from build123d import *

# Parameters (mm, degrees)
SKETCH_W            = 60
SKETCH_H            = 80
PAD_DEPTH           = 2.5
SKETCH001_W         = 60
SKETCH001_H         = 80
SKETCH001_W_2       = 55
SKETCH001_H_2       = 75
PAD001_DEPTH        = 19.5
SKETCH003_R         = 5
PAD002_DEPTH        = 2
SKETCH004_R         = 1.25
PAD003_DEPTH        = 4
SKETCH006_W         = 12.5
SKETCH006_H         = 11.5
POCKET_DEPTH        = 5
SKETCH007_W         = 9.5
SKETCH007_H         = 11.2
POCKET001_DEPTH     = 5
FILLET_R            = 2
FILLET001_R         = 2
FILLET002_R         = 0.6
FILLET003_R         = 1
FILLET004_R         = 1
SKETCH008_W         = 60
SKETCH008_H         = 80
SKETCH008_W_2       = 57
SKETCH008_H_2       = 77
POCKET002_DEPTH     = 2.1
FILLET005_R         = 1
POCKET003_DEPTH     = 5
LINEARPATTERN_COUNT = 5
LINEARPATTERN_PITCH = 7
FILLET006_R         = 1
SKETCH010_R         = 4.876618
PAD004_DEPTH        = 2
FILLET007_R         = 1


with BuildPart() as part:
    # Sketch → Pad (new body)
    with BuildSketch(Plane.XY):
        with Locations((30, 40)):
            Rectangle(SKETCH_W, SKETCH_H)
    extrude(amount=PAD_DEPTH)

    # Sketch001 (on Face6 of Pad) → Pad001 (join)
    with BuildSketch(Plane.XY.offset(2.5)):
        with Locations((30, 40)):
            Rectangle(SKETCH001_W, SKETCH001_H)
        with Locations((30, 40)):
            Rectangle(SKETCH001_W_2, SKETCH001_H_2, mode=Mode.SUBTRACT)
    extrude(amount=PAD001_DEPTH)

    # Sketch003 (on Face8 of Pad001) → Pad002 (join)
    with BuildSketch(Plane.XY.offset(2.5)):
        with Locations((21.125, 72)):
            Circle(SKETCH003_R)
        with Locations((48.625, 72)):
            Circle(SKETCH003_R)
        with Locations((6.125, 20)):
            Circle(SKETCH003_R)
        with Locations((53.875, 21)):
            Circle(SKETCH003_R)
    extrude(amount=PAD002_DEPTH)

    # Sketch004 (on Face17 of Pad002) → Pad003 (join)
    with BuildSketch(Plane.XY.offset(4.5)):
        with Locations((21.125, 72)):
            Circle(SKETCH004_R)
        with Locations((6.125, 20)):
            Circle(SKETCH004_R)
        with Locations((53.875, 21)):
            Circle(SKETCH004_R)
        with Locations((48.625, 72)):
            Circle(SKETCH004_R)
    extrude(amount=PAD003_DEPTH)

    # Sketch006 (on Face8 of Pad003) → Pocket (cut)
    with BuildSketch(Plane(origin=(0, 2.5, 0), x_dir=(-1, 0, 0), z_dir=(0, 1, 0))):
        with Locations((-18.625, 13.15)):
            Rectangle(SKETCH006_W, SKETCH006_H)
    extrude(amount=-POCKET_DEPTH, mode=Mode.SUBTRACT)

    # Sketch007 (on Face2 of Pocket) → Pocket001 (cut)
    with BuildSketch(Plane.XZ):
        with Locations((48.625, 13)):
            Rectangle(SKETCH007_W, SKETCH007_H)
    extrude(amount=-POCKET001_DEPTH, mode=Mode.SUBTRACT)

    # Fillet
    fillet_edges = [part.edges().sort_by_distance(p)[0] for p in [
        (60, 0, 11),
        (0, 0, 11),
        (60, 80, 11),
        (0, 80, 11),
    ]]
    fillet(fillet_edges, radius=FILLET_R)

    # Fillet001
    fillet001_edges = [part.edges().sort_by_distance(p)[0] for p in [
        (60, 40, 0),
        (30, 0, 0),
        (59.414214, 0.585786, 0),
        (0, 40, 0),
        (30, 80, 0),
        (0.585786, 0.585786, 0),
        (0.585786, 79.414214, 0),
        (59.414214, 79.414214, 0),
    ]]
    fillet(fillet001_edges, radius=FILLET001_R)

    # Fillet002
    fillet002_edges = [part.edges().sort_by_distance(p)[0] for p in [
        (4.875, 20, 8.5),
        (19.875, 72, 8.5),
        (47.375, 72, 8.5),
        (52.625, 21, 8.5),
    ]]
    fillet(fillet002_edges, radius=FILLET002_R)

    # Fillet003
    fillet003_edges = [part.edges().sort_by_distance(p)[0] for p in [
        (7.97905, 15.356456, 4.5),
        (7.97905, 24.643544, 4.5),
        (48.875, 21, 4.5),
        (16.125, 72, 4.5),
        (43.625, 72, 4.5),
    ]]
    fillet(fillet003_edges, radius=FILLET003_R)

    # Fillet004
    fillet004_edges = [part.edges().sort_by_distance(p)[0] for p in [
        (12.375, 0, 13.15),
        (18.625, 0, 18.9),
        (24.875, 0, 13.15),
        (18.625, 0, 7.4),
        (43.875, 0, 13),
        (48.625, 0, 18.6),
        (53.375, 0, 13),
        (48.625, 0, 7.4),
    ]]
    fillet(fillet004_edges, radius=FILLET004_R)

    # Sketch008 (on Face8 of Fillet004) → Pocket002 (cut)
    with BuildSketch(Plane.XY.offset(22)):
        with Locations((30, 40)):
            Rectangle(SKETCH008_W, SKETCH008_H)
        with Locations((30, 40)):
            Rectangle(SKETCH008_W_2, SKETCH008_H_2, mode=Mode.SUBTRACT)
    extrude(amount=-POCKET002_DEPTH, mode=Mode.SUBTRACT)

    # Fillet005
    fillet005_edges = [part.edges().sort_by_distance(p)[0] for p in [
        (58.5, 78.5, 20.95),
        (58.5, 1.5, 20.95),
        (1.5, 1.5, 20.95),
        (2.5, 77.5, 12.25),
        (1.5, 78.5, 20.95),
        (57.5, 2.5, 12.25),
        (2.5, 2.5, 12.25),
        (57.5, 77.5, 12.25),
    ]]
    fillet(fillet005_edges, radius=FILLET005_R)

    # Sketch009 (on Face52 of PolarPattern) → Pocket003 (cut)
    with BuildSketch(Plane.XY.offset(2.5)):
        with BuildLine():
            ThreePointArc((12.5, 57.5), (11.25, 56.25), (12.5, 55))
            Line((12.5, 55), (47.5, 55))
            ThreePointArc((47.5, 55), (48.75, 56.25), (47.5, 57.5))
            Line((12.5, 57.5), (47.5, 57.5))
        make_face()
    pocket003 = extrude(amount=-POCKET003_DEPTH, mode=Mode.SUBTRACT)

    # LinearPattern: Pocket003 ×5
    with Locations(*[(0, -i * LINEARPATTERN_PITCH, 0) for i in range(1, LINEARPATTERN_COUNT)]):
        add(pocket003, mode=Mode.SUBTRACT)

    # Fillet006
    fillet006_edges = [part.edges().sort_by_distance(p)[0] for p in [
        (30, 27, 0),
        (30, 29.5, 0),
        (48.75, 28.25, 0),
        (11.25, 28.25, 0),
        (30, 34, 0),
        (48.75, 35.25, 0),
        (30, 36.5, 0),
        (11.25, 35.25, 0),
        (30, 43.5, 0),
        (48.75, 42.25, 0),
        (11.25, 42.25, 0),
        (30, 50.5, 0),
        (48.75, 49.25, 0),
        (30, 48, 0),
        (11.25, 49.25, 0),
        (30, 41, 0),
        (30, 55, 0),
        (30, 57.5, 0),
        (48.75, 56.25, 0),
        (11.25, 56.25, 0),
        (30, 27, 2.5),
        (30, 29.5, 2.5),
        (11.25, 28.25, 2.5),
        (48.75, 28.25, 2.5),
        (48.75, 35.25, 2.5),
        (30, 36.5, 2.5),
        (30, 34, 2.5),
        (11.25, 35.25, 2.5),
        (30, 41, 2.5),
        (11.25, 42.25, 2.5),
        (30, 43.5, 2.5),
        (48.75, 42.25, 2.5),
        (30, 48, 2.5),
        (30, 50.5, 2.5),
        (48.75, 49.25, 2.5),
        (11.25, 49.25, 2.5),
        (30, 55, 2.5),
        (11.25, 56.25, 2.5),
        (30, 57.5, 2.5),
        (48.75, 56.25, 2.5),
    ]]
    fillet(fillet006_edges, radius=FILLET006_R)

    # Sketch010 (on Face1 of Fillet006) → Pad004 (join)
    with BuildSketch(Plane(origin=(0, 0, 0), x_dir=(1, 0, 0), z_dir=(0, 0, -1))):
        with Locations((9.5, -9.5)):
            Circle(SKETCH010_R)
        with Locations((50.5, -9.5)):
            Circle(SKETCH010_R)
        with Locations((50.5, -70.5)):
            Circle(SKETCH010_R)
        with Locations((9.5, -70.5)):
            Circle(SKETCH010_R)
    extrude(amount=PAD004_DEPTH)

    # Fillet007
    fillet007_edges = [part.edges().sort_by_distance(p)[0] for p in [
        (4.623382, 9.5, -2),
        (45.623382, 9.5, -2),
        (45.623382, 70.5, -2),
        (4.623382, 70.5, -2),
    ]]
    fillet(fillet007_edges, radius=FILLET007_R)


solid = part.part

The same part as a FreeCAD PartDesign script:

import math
import FreeCAD as App
import Part
import Sketcher
Q = App.Units.Quantity


def edges_at(feature, points):
    """Names of the edges that pass closest to the given points."""
    edges = feature.Shape.Edges
    near = lambda p: min(range(len(edges)), key=lambda i: edges[i].distToShape(Part.Vertex(*p))[0])
    return sorted({f"Edge{near(p) + 1}" for p in points})

doc = App.newDocument("Part")
params = doc.addObject("Spreadsheet::Sheet", "Params")
for row, (alias, value) in enumerate([
    ("sketch1_width", "60 mm"),
    ("sketch1_height", "80 mm"),
    ("pad1_length", "2.5 mm"),
    ("sketch2_width", "60 mm"),
    ("sketch2_width2", "55 mm"),
    ("sketch2_height", "80 mm"),
    ("sketch2_height2", "75 mm"),
    ("pad2_length", "19.5 mm"),
    ("sketch3_diameter", "10 mm"),
    ("pad3_length", "2 mm"),
    ("sketch4_diameter", "2.5 mm"),
    ("pad4_length", "4 mm"),
    ("sketch5_width", "12.5 mm"),
    ("sketch5_height", "11.5 mm"),
    ("pocket1_length", "5 mm"),
    ("sketch6_width", "9.5 mm"),
    ("sketch6_height", "11.2 mm"),
    ("pocket2_length", "5 mm"),
    ("fillet_radius", "2 mm"),
    ("fillet2_radius", "2 mm"),
    ("fillet3_radius", "0.6 mm"),
    ("fillet4_radius", "1 mm"),
    ("fillet5_radius", "1 mm"),
    ("sketch7_width", "60 mm"),
    ("sketch7_width2", "57 mm"),
    ("sketch7_height", "80 mm"),
    ("sketch7_height2", "77 mm"),
    ("pocket3_length", "2.1 mm"),
    ("fillet6_radius", "1 mm"),
    ("sketch8_width", "35 mm"),
    ("sketch8_radius", "1.25 mm"),
    ("pocket4_length", "5 mm"),
    ("linearpattern_pitch", "7 mm"),
    ("fillet7_radius", "1 mm"),
    ("pad5_length", "2 mm"),
    ("fillet8_radius", "1 mm"),
], start=1):
    params.set(f"A{row}", alias)
    params.set(f"B{row}", "=" + value)
    params.setAlias(f"B{row}", alias)

body = doc.addObject("PartDesign::Body", "Body")

sketch1 = body.newObject("Sketcher::SketchObject", "Sketch")
sketch1.AttachmentSupport = (doc.getObject("XY_Plane"), [""])
sketch1.MapMode = "FlatFace"
sketch1.addGeometry([
    Part.LineSegment(App.Vector(0, 80, 0), App.Vector(0, 0, 0)),
    Part.LineSegment(App.Vector(0, 0, 0), App.Vector(60, 0, 0)),
    Part.LineSegment(App.Vector(60, 0, 0), App.Vector(60, 80, 0)),
    Part.LineSegment(App.Vector(60, 80, 0), App.Vector(0, 80, 0)),
], False)
sketch1.addConstraint([
    Sketcher.Constraint("Coincident", 0, 2, 1, 1),
    Sketcher.Constraint("Coincident", 1, 2, 2, 1),
    Sketcher.Constraint("Coincident", 2, 2, 3, 1),
    Sketcher.Constraint("Coincident", 3, 2, 0, 1),
    Sketcher.Constraint("Vertical", 0),
    Sketcher.Constraint("Horizontal", 1),
    Sketcher.Constraint("Vertical", 2),
    Sketcher.Constraint("Horizontal", 3),
    Sketcher.Constraint("Coincident", 0, 2, -1, 1),
    Sketcher.Constraint("DistanceX", 1, 1, 1, 2, Q("60 mm")),
    Sketcher.Constraint("DistanceY", 0, 2, 0, 1, Q("80 mm")),
])
sketch1.setExpression("Constraints[9]", "Params.sketch1_width")
sketch1.setExpression("Constraints[10]", "Params.sketch1_height")
pad1 = body.newObject("PartDesign::Pad", "Pad")
pad1.Profile = sketch1
pad1.setExpression("Length", "Params.pad1_length")

sketch2 = body.newObject("Sketcher::SketchObject", "Sketch001")
sketch2.AttachmentSupport = (doc.getObject("XY_Plane"), [""])
sketch2.MapMode = "FlatFace"
sketch2.AttachmentOffset = App.Placement(App.Vector(0, 0, 2.5), App.Rotation())
sketch2.addGeometry([
    Part.LineSegment(App.Vector(0, 80, 0), App.Vector(0, 0, 0)),
    Part.LineSegment(App.Vector(0, 0, 0), App.Vector(60, 0, 0)),
    Part.LineSegment(App.Vector(60, 0, 0), App.Vector(60, 80, 0)),
    Part.LineSegment(App.Vector(60, 80, 0), App.Vector(0, 80, 0)),
    Part.LineSegment(App.Vector(58, 2, 0), App.Vector(2, 2, 0)),
    Part.LineSegment(App.Vector(2, 2, 0), App.Vector(2, 78, 0)),
    Part.LineSegment(App.Vector(2, 78, 0), App.Vector(58, 78, 0)),
    Part.LineSegment(App.Vector(58, 78, 0), App.Vector(58, 2, 0)),
], False)
sketch2.addConstraint([
    Sketcher.Constraint("Coincident", 0, 2, 1, 1),
    Sketcher.Constraint("Coincident", 1, 2, 2, 1),
    Sketcher.Constraint("Coincident", 2, 2, 3, 1),
    Sketcher.Constraint("Coincident", 3, 2, 0, 1),
    Sketcher.Constraint("Coincident", 4, 2, 5, 1),
    Sketcher.Constraint("Coincident", 5, 2, 6, 1),
    Sketcher.Constraint("Coincident", 6, 2, 7, 1),
    Sketcher.Constraint("Coincident", 7, 2, 4, 1),
    Sketcher.Constraint("Vertical", 0),
    Sketcher.Constraint("Horizontal", 1),
    Sketcher.Constraint("Vertical", 2),
    Sketcher.Constraint("Horizontal", 3),
    Sketcher.Constraint("Horizontal", 4),
    Sketcher.Constraint("Vertical", 5),
    Sketcher.Constraint("Horizontal", 6),
    Sketcher.Constraint("Vertical", 7),
    Sketcher.Constraint("Coincident", 0, 2, -1, 1),
    Sketcher.Constraint("DistanceX", 1, 1, 1, 2, Q("60 mm")),
    Sketcher.Constraint("DistanceX", 4, 2, 4, 1, Q("55 mm")),
    Sketcher.Constraint("DistanceY", 0, 2, 0, 1, Q("80 mm")),
    Sketcher.Constraint("DistanceY", 5, 1, 5, 2, Q("75 mm")),
    Sketcher.Constraint("DistanceX", -1, 1, 4, 2, Q("2.5 mm")),
    Sketcher.Constraint("DistanceY", -1, 1, 4, 2, Q("2.5 mm")),
])
sketch2.setExpression("Constraints[17]", "Params.sketch2_width")
sketch2.setExpression("Constraints[18]", "Params.sketch2_width2")
sketch2.setExpression("Constraints[19]", "Params.sketch2_height")
sketch2.setExpression("Constraints[20]", "Params.sketch2_height2")
pad2 = body.newObject("PartDesign::Pad", "Pad001")
pad2.Profile = sketch2
pad2.setExpression("Length", "Params.pad2_length")

sketch3 = body.newObject("Sketcher::SketchObject", "Sketch002")
sketch3.AttachmentSupport = (doc.getObject("XY_Plane"), [""])
sketch3.MapMode = "FlatFace"
sketch3.AttachmentOffset = App.Placement(App.Vector(0, 0, 2.5), App.Rotation())
sketch3.addGeometry([
    Part.Circle(App.Vector(21, 72, 0), App.Vector(0, 0, 1), 5),
    Part.Circle(App.Vector(49, 72, 0), App.Vector(0, 0, 1), 5),
    Part.Circle(App.Vector(6, 20, 0), App.Vector(0, 0, 1), 5),
    Part.Circle(App.Vector(54, 21, 0), App.Vector(0, 0, 1), 5),
], False)
sketch3.addConstraint([
    Sketcher.Constraint("Equal", 0, 1),
    Sketcher.Constraint("Equal", 1, 2),
    Sketcher.Constraint("Equal", 2, 3),
    Sketcher.Constraint("Horizontal", 0, 3, 1, 3),
    Sketcher.Constraint("Diameter", 0, Q("10 mm")),
    Sketcher.Constraint("DistanceY", -1, 1, 0, 3, Q("72 mm")),
    Sketcher.Constraint("DistanceY", -1, 1, 2, 3, Q("20 mm")),
    Sketcher.Constraint("DistanceY", -1, 1, 3, 3, Q("21 mm")),
    Sketcher.Constraint("DistanceX", 2, 3, 0, 3, Q("15 mm")),
    Sketcher.Constraint("DistanceX", 0, 3, 1, 3, Q("27.5 mm")),
    Sketcher.Constraint("DistanceX", 2, 3, 3, 3, Q("47.75 mm")),
    Sketcher.Constraint("DistanceX", -1, 1, 0, 3, Q("21.125 mm")),
])
sketch3.setExpression("Constraints[4]", "Params.sketch3_diameter")
pad3 = body.newObject("PartDesign::Pad", "Pad002")
pad3.Profile = sketch3
pad3.setExpression("Length", "Params.pad3_length")

sketch4 = body.newObject("Sketcher::SketchObject", "Sketch003")
sketch4.AttachmentSupport = (doc.getObject("XY_Plane"), [""])
sketch4.MapMode = "FlatFace"
sketch4.AttachmentOffset = App.Placement(App.Vector(0, 0, 4.5), App.Rotation())
sketch4.addGeometry([
    Part.Circle(App.Vector(21.1, 72, 0), App.Vector(0, 0, 1), 1.2),
    Part.Circle(App.Vector(6.1, 20, 0), App.Vector(0, 0, 1), 1.2),
    Part.Circle(App.Vector(53.9, 21, 0), App.Vector(0, 0, 1), 1.2),
    Part.Circle(App.Vector(48.6, 72, 0), App.Vector(0, 0, 1), 1.2),
], False)
sketch4.addConstraint([
    Sketcher.Constraint("Equal", 0, 1),
    Sketcher.Constraint("Equal", 1, 2),
    Sketcher.Constraint("Equal", 2, 3),
    Sketcher.Constraint("Horizontal", 0, 3, 3, 3),
    Sketcher.Constraint("Diameter", 0, Q("2.5 mm")),
    Sketcher.Constraint("DistanceY", -1, 1, 0, 3, Q("72 mm")),
    Sketcher.Constraint("DistanceY", -1, 1, 1, 3, Q("20 mm")),
    Sketcher.Constraint("DistanceY", -1, 1, 2, 3, Q("21 mm")),
    Sketcher.Constraint("DistanceX", 1, 3, 0, 3, Q("15 mm")),
    Sketcher.Constraint("DistanceX", 0, 3, 3, 3, Q("27.5 mm")),
    Sketcher.Constraint("DistanceX", 1, 3, 2, 3, Q("47.75 mm")),
    Sketcher.Constraint("DistanceX", -1, 1, 0, 3, Q("21.125 mm")),
])
sketch4.setExpression("Constraints[4]", "Params.sketch4_diameter")
pad4 = body.newObject("PartDesign::Pad", "Pad003")
pad4.Profile = sketch4
pad4.setExpression("Length", "Params.pad4_length")

sketch5 = body.newObject("Sketcher::SketchObject", "Sketch004")
sketch5.AttachmentSupport = (doc.getObject("XZ_Plane"), [""])
sketch5.MapMode = "FlatFace"
sketch5.AttachmentOffset = App.Placement(App.Vector(0, 0, -2.5), App.Rotation())
sketch5.addGeometry([
    Part.LineSegment(App.Vector(25, 19, 0), App.Vector(25, 7, 0)),
    Part.LineSegment(App.Vector(25, 7, 0), App.Vector(12, 7, 0)),
    Part.LineSegment(App.Vector(12, 7, 0), App.Vector(12, 19, 0)),
    Part.LineSegment(App.Vector(12, 19, 0), App.Vector(25, 19, 0)),
], False)
sketch5.addConstraint([
    Sketcher.Constraint("Coincident", 0, 2, 1, 1),
    Sketcher.Constraint("Coincident", 1, 2, 2, 1),
    Sketcher.Constraint("Coincident", 2, 2, 3, 1),
    Sketcher.Constraint("Coincident", 3, 2, 0, 1),
    Sketcher.Constraint("Vertical", 0),
    Sketcher.Constraint("Horizontal", 1),
    Sketcher.Constraint("Vertical", 2),
    Sketcher.Constraint("Horizontal", 3),
    Sketcher.Constraint("DistanceX", 1, 2, 1, 1, Q("12.5 mm")),
    Sketcher.Constraint("DistanceY", 0, 2, 0, 1, Q("11.5 mm")),
    Sketcher.Constraint("DistanceY", -1, 1, 0, 2, Q("7.4 mm")),
    Sketcher.Constraint("DistanceX", -1, 1, 0, 2, Q("24.875 mm")),
])
sketch5.setExpression("Constraints[8]", "Params.sketch5_width")
sketch5.setExpression("Constraints[9]", "Params.sketch5_height")
pocket1 = body.newObject("PartDesign::Pocket", "Pocket")
pocket1.Profile = sketch5
pocket1.setExpression("Length", "Params.pocket1_length")
pocket1.Reversed = True

sketch6 = body.newObject("Sketcher::SketchObject", "Sketch005")
sketch6.AttachmentSupport = (doc.getObject("XZ_Plane"), [""])
sketch6.MapMode = "FlatFace"
sketch6.addGeometry([
    Part.LineSegment(App.Vector(44, 19, 0), App.Vector(44, 7, 0)),
    Part.LineSegment(App.Vector(44, 7, 0), App.Vector(53, 7, 0)),
    Part.LineSegment(App.Vector(53, 7, 0), App.Vector(53, 19, 0)),
    Part.LineSegment(App.Vector(53, 19, 0), App.Vector(44, 19, 0)),
], False)
sketch6.addConstraint([
    Sketcher.Constraint("Coincident", 0, 2, 1, 1),
    Sketcher.Constraint("Coincident", 1, 2, 2, 1),
    Sketcher.Constraint("Coincident", 2, 2, 3, 1),
    Sketcher.Constraint("Coincident", 3, 2, 0, 1),
    Sketcher.Constraint("Vertical", 0),
    Sketcher.Constraint("Horizontal", 1),
    Sketcher.Constraint("Vertical", 2),
    Sketcher.Constraint("Horizontal", 3),
    Sketcher.Constraint("DistanceX", 1, 1, 1, 2, Q("9.5 mm")),
    Sketcher.Constraint("DistanceY", 0, 2, 0, 1, Q("11.2 mm")),
    Sketcher.Constraint("DistanceY", -1, 1, 0, 2, Q("7.4 mm")),
    Sketcher.Constraint("DistanceX", -1, 1, 0, 2, Q("43.875 mm")),
])
sketch6.setExpression("Constraints[8]", "Params.sketch6_width")
sketch6.setExpression("Constraints[9]", "Params.sketch6_height")
pocket2 = body.newObject("PartDesign::Pocket", "Pocket001")
pocket2.Profile = sketch6
pocket2.setExpression("Length", "Params.pocket2_length")
doc.recompute()

fillet = body.newObject("PartDesign::Fillet", "Fillet")
fillet.Base = (pocket2, edges_at(pocket2, [
    (60, 0, 11),
    (0, 0, 11),
    (60, 80, 11),
    (0, 80, 11),
]))
fillet.setExpression("Radius", "Params.fillet_radius")
doc.recompute()

fillet2 = body.newObject("PartDesign::Fillet", "Fillet001")
fillet2.Base = (fillet, edges_at(fillet, [
    (60, 40, 0),
    (30, 0, 0),
    (59.414, 0.586, 0),
    (0, 40, 0),
    (30, 80, 0),
    (0.586, 0.586, 0),
    (0.586, 79.414, 0),
    (59.414, 79.414, 0),
]))
fillet2.setExpression("Radius", "Params.fillet2_radius")
doc.recompute()

fillet3 = body.newObject("PartDesign::Fillet", "Fillet002")
fillet3.Base = (fillet2, edges_at(fillet2, [
    (4.875, 20, 8.5),
    (19.875, 72, 8.5),
    (47.375, 72, 8.5),
    (52.625, 21, 8.5),
]))
fillet3.setExpression("Radius", "Params.fillet3_radius")
doc.recompute()

fillet4 = body.newObject("PartDesign::Fillet", "Fillet003")
fillet4.Base = (fillet3, edges_at(fillet3, [
    (11.125, 20, 4.5),
    (11.125, 20, 4.5),
    (48.875, 21, 4.5),
    (16.125, 72, 4.5),
    (43.625, 72, 4.5),
]))
fillet4.setExpression("Radius", "Params.fillet4_radius")
doc.recompute()

fillet5 = body.newObject("PartDesign::Fillet", "Fillet004")
fillet5.Base = (fillet4, edges_at(fillet4, [
    (12.375, 0, 13.15),
    (18.625, 0, 18.9),
    (24.875, 0, 13.15),
    (18.625, 0, 7.4),
    (43.875, 0, 13),
    (48.625, 0, 18.6),
    (53.375, 0, 13),
    (48.625, 0, 7.4),
]))
fillet5.setExpression("Radius", "Params.fillet5_radius")

sketch7 = body.newObject("Sketcher::SketchObject", "Sketch006")
sketch7.AttachmentSupport = (doc.getObject("XY_Plane"), [""])
sketch7.MapMode = "FlatFace"
sketch7.AttachmentOffset = App.Placement(App.Vector(0, 0, 22), App.Rotation())
sketch7.addGeometry([
    Part.LineSegment(App.Vector(0, 80, 0), App.Vector(0, 0, 0)),
    Part.LineSegment(App.Vector(0, 0, 0), App.Vector(60, 0, 0)),
    Part.LineSegment(App.Vector(60, 0, 0), App.Vector(60, 80, 0)),
    Part.LineSegment(App.Vector(60, 80, 0), App.Vector(0, 80, 0)),
    Part.LineSegment(App.Vector(58, 2, 0), App.Vector(2, 2, 0)),
    Part.LineSegment(App.Vector(2, 2, 0), App.Vector(2, 78, 0)),
    Part.LineSegment(App.Vector(2, 78, 0), App.Vector(58, 78, 0)),
    Part.LineSegment(App.Vector(58, 78, 0), App.Vector(58, 2, 0)),
], False)
sketch7.addConstraint([
    Sketcher.Constraint("Coincident", 0, 2, 1, 1),
    Sketcher.Constraint("Coincident", 1, 2, 2, 1),
    Sketcher.Constraint("Coincident", 2, 2, 3, 1),
    Sketcher.Constraint("Coincident", 3, 2, 0, 1),
    Sketcher.Constraint("Coincident", 4, 2, 5, 1),
    Sketcher.Constraint("Coincident", 5, 2, 6, 1),
    Sketcher.Constraint("Coincident", 6, 2, 7, 1),
    Sketcher.Constraint("Coincident", 7, 2, 4, 1),
    Sketcher.Constraint("Vertical", 0),
    Sketcher.Constraint("Horizontal", 1),
    Sketcher.Constraint("Vertical", 2),
    Sketcher.Constraint("Horizontal", 3),
    Sketcher.Constraint("Horizontal", 4),
    Sketcher.Constraint("Vertical", 5),
    Sketcher.Constraint("Horizontal", 6),
    Sketcher.Constraint("Vertical", 7),
    Sketcher.Constraint("Coincident", 0, 2, -1, 1),
    Sketcher.Constraint("DistanceX", 1, 1, 1, 2, Q("60 mm")),
    Sketcher.Constraint("DistanceX", 4, 2, 4, 1, Q("57 mm")),
    Sketcher.Constraint("DistanceY", 0, 2, 0, 1, Q("80 mm")),
    Sketcher.Constraint("DistanceY", 5, 1, 5, 2, Q("77 mm")),
    Sketcher.Constraint("DistanceX", -1, 1, 4, 2, Q("1.5 mm")),
    Sketcher.Constraint("DistanceY", -1, 1, 4, 2, Q("1.5 mm")),
])
sketch7.setExpression("Constraints[17]", "Params.sketch7_width")
sketch7.setExpression("Constraints[18]", "Params.sketch7_width2")
sketch7.setExpression("Constraints[19]", "Params.sketch7_height")
sketch7.setExpression("Constraints[20]", "Params.sketch7_height2")
pocket3 = body.newObject("PartDesign::Pocket", "Pocket002")
pocket3.Profile = sketch7
pocket3.setExpression("Length", "Params.pocket3_length")
doc.recompute()

fillet6 = body.newObject("PartDesign::Fillet", "Fillet005")
fillet6.Base = (pocket3, edges_at(pocket3, [
    (58.5, 78.5, 20.95),
    (58.5, 1.5, 20.95),
    (1.5, 1.5, 20.95),
    (2.5, 77.5, 12.25),
    (1.5, 78.5, 20.95),
    (57.5, 2.5, 12.25),
    (2.5, 2.5, 12.25),
    (57.5, 77.5, 12.25),
]))
fillet6.setExpression("Radius", "Params.fillet6_radius")

sketch8 = body.newObject("Sketcher::SketchObject", "Sketch007")
sketch8.AttachmentSupport = (doc.getObject("XY_Plane"), [""])
sketch8.MapMode = "FlatFace"
sketch8.AttachmentOffset = App.Placement(App.Vector(0, 0, 2.5), App.Rotation())
sketch8.addGeometry([
    Part.ArcOfCircle(Part.Circle(App.Vector(12.5, 56.2, 0), App.Vector(0, 0, 1), 1.2), math.radians(90), math.radians(270)),
    Part.LineSegment(App.Vector(12.5, 55, 0), App.Vector(47.5, 55, 0)),
    Part.ArcOfCircle(Part.Circle(App.Vector(47.5, 56.2, 0), App.Vector(0, 0, 1), 1.2), math.radians(-90), math.radians(90)),
    Part.LineSegment(App.Vector(47.5, 57.5, 0), App.Vector(12.5, 57.5, 0)),
], False)
sketch8.addConstraint([
    Sketcher.Constraint("Tangent", 0, 2, 1, 1),
    Sketcher.Constraint("Tangent", 1, 2, 2, 1),
    Sketcher.Constraint("Tangent", 2, 2, 3, 1),
    Sketcher.Constraint("Tangent", 3, 2, 0, 1),
    Sketcher.Constraint("Horizontal", 1),
    Sketcher.Constraint("Horizontal", 3),
    Sketcher.Constraint("DistanceX", 1, 1, 1, 2, Q("35 mm")),
    Sketcher.Constraint("Radius", 0, Q("1.25 mm")),
    Sketcher.Constraint("DistanceY", -1, 1, 0, 2, Q("55 mm")),
    Sketcher.Constraint("DistanceX", -1, 1, 0, 3, Q("12.5 mm")),
])
sketch8.setExpression("Constraints[6]", "Params.sketch8_width")
sketch8.setExpression("Constraints[7]", "Params.sketch8_radius")
pocket4 = body.newObject("PartDesign::Pocket", "Pocket003")
pocket4.Profile = sketch8
pocket4.setExpression("Length", "Params.pocket4_length")
doc.recompute()

linearpattern = body.newObject("PartDesign::LinearPattern", "LinearPattern")
linearpattern.Originals = [pocket4]
linearpattern.Direction = (doc.getObject("Y_Axis"), [""])
linearpattern.Mode = "offset"
linearpattern.setExpression("Offset", "Params.linearpattern_pitch")
linearpattern.Occurrences = 5
linearpattern.Reversed = True
body.Tip = linearpattern
doc.recompute()

fillet7 = body.newObject("PartDesign::Fillet", "Fillet006")
fillet7.Base = (linearpattern, edges_at(linearpattern, [
    (30, 27, 0),
    (30, 29.5, 0),
    (48.75, 28.25, 0),
    (11.25, 28.25, 0),
    (30, 34, 0),
    (48.75, 35.25, 0),
    (30, 36.5, 0),
    (11.25, 35.25, 0),
    (30, 43.5, 0),
    (48.75, 42.25, 0),
    (11.25, 42.25, 0),
    (30, 50.5, 0),
    (48.75, 49.25, 0),
    (30, 48, 0),
    (11.25, 49.25, 0),
    (30, 41, 0),
    (30, 55, 0),
    (30, 57.5, 0),
    (48.75, 56.25, 0),
    (11.25, 56.25, 0),
    (30, 27, 2.5),
    (30, 29.5, 2.5),
    (11.25, 28.25, 2.5),
    (48.75, 28.25, 2.5),
    (48.75, 35.25, 2.5),
    (30, 36.5, 2.5),
    (30, 34, 2.5),
    (11.25, 35.25, 2.5),
    (30, 41, 2.5),
    (11.25, 42.25, 2.5),
    (30, 43.5, 2.5),
    (48.75, 42.25, 2.5),
    (30, 48, 2.5),
    (30, 50.5, 2.5),
    (48.75, 49.25, 2.5),
    (11.25, 49.25, 2.5),
    (30, 55, 2.5),
    (11.25, 56.25, 2.5),
    (30, 57.5, 2.5),
    (48.75, 56.25, 2.5),
]))
fillet7.setExpression("Radius", "Params.fillet7_radius")

sketch9 = body.newObject("Sketcher::SketchObject", "Sketch008")
sketch9.AttachmentSupport = (doc.getObject("XY_Plane"), [""])
sketch9.MapMode = "FlatFace"
sketch9.addGeometry([
    Part.Circle(App.Vector(9.5, 9.5, 0), App.Vector(0, 0, 1), 4.9),
    Part.Circle(App.Vector(50.5, 9.5, 0), App.Vector(0, 0, 1), 4.9),
    Part.Circle(App.Vector(50.5, 70.5, 0), App.Vector(0, 0, 1), 4.9),
    Part.Circle(App.Vector(9.5, 70.5, 0), App.Vector(0, 0, 1), 4.9),
], False)
sketch9.addConstraint([
    Sketcher.Constraint("Equal", 0, 1),
    Sketcher.Constraint("Equal", 1, 2),
    Sketcher.Constraint("Equal", 2, 3),
    Sketcher.Constraint("Horizontal", 0, 3, 1, 3),
    Sketcher.Constraint("Horizontal", 2, 3, 3, 3),
    Sketcher.Constraint("Vertical", 1, 3, 2, 3),
    Sketcher.Constraint("Vertical", 0, 3, 3, 3),
    Sketcher.Constraint("DistanceX", 0, 3, 1, 3, Q("41 mm")),
    Sketcher.Constraint("DistanceY", 1, 3, 2, 3, Q("61 mm")),
    Sketcher.Constraint("DistanceX", -1, 1, 0, 3, Q("9.5 mm")),
    Sketcher.Constraint("DistanceY", -1, 1, 0, 3, Q("9.5 mm")),
    Sketcher.Constraint("Diameter", 0, Q("9.753236 mm")),
])
pad5 = body.newObject("PartDesign::Pad", "Pad004")
pad5.Profile = sketch9
pad5.setExpression("Length", "Params.pad5_length")
pad5.Reversed = True
doc.recompute()

fillet8 = body.newObject("PartDesign::Fillet", "Fillet007")
fillet8.Base = (pad5, edges_at(pad5, [
    (4.623, 9.5, -2),
    (45.623, 9.5, -2),
    (45.623, 70.5, -2),
    (4.623, 70.5, -2),
]))
fillet8.setExpression("Radius", "Params.fillet8_radius")

doc.recompute()
